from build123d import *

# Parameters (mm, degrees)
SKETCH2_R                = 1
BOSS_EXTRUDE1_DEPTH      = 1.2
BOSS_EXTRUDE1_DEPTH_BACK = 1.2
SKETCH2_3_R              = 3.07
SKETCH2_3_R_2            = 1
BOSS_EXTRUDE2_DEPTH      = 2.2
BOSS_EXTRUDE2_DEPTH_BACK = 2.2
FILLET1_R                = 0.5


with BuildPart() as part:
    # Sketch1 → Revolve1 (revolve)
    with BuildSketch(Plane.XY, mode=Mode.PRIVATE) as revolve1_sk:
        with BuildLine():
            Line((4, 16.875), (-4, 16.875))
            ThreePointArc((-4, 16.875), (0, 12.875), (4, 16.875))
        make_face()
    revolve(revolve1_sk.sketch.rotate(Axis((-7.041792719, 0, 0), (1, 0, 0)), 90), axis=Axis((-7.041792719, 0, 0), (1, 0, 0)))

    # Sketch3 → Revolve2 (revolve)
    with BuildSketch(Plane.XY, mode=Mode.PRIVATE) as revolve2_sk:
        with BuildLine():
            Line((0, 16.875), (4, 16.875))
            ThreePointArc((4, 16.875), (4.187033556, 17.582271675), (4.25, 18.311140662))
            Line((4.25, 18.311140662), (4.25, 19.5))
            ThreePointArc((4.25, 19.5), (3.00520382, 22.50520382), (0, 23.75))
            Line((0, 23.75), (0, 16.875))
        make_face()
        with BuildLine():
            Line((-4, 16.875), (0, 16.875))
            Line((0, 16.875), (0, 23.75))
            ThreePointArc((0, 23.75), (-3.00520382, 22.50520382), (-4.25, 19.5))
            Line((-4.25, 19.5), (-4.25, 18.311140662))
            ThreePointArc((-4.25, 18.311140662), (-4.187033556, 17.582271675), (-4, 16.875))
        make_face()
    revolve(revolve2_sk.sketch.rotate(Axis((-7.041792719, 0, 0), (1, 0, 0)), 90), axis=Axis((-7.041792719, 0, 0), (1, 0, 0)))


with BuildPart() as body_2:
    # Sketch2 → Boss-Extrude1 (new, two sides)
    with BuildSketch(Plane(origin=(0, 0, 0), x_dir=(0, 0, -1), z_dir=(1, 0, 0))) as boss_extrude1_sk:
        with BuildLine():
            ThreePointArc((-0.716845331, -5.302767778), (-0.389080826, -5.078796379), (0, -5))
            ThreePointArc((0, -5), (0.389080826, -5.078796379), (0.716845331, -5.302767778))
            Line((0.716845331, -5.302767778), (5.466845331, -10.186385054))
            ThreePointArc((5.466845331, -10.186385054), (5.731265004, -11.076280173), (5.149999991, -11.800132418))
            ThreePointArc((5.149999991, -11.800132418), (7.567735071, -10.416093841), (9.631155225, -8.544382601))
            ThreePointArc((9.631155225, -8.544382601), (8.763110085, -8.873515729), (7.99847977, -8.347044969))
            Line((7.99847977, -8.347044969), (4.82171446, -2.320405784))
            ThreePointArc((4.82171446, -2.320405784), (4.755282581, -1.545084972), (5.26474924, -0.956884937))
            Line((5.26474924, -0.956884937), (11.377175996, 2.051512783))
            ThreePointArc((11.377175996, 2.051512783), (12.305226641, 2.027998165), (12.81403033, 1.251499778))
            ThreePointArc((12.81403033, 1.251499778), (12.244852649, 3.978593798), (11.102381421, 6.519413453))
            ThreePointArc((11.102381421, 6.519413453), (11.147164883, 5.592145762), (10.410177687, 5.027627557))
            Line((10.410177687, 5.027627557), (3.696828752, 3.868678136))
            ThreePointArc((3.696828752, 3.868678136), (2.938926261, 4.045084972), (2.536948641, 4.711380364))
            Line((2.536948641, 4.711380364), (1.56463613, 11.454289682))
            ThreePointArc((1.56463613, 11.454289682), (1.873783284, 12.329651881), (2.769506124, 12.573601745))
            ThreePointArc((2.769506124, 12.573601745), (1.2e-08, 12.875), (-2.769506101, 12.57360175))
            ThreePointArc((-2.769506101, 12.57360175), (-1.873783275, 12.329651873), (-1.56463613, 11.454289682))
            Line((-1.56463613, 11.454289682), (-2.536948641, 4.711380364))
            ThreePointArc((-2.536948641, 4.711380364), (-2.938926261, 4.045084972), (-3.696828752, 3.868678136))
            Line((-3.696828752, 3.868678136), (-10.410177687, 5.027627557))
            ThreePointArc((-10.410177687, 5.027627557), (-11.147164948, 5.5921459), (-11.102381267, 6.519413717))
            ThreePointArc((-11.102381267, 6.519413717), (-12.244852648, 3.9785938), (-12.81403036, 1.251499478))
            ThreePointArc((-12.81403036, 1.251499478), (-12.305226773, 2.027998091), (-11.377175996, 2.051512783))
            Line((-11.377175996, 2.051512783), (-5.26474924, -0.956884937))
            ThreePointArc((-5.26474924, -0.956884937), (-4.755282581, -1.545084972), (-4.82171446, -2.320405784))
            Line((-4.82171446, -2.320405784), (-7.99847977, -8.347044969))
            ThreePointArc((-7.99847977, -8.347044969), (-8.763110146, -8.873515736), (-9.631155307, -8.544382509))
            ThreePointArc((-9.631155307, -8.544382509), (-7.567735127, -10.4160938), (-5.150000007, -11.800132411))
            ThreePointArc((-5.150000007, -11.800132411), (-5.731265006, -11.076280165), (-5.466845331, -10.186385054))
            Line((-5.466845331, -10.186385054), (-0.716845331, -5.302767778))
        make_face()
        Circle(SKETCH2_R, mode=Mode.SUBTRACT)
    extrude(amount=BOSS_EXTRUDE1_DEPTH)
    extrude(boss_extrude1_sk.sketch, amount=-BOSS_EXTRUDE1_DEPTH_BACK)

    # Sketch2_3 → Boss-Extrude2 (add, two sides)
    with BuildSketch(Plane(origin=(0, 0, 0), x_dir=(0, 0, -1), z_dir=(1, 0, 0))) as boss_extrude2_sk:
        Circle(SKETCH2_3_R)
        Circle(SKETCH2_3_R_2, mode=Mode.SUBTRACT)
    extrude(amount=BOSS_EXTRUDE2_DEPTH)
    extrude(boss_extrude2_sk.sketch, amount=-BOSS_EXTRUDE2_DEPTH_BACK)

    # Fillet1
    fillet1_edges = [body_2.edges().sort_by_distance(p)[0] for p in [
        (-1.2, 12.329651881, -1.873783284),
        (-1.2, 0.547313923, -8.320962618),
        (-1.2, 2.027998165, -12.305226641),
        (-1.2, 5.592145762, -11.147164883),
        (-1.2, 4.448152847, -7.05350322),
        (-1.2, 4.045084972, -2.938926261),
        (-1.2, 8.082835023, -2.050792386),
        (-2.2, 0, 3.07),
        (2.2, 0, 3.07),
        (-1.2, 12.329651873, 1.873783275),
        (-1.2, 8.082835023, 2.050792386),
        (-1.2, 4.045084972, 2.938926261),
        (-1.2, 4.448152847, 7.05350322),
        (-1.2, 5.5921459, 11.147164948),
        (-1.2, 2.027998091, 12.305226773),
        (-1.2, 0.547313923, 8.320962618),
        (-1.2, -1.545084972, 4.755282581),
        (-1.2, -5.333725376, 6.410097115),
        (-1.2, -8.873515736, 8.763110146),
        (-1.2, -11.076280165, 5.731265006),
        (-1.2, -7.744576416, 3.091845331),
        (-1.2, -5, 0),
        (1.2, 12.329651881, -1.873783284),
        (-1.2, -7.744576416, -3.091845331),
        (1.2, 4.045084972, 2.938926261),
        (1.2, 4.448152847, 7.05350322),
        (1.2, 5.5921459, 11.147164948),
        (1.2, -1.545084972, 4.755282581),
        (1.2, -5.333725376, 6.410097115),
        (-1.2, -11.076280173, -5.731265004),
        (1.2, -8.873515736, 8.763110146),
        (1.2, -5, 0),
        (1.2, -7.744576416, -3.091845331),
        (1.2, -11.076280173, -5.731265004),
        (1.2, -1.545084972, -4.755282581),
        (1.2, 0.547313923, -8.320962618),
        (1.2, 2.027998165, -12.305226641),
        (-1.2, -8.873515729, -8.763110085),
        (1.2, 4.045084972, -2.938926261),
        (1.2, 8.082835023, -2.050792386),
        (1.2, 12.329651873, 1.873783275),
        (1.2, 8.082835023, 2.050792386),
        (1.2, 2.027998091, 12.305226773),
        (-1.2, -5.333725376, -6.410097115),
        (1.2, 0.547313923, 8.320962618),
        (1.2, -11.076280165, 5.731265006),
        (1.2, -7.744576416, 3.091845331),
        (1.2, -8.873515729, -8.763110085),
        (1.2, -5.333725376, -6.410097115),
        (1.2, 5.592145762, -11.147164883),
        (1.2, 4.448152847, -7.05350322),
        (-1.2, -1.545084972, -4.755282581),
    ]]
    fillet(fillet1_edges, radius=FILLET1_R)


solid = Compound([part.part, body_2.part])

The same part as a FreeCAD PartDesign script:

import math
import FreeCAD as App
import Part
import Sketcher


def edges_at(feature, points):
    """Names of the edges that pass closest to the given points."""
    edges = feature.Shape.Edges
    near = lambda p: min(range(len(edges)), key=lambda i: edges[i].distToShape(Part.Vertex(*p))[0])
    return sorted({f"Edge{near(p) + 1}" for p in points})

doc = App.newDocument("Part")
body = doc.addObject("PartDesign::Body", "Body")

# Sketch on XY plane
sketch1 = body.newObject("Sketcher::SketchObject", "Sketch")
sketch1.AttachmentSupport = (doc.getObject("XY_Plane"), [""])
sketch1.MapMode = "FlatFace"
sketch1.addGeometry(Part.LineSegment(App.Vector(4, 16.9, 0), App.Vector(-4, 16.9, 0)), False)
sketch1.addGeometry(Part.ArcOfCircle(Part.Circle(App.Vector(0, 16.9, 0), App.Vector(0, 0, 1), 4), math.radians(180), math.radians(360)), False)
sketch1.addConstraint(Sketcher.Constraint("Coincident", 0, 1, 1, 2))
sketch1.addConstraint(Sketcher.Constraint("Coincident", 1, 1, 0, 2))
sketch1.addConstraint(Sketcher.Constraint("Horizontal", 0))
sketch1.addConstraint(Sketcher.Constraint("PointOnObject", 1, 3, -2))
sketch1.addConstraint(Sketcher.Constraint("Horizontal", 1, 3, 0, 1))
sketch1.addConstraint(Sketcher.Constraint("Radius", 1, 4.0))
sketch1.addConstraint(Sketcher.Constraint("DistanceY", -1, 1, 1, 3, 16.875))
revolution = body.newObject("PartDesign::Revolution", "Revolution")
revolution.Profile = sketch1
revolution.ReferenceAxis = (sketch1, ["H_Axis"])
revolution.Angle = 360

# Sketch on XY plane
sketch2 = body.newObject("Sketcher::SketchObject", "Sketch001")
sketch2.AttachmentSupport = (doc.getObject("XY_Plane"), [""])
sketch2.MapMode = "FlatFace"
sketch2.addGeometry(Part.ArcOfCircle(Part.Circle(App.Vector(0, 18.3, 0), App.Vector(0, 0, 1), 4.3), math.radians(-19.75), math.radians(0)), False)
sketch2.addGeometry(Part.LineSegment(App.Vector(4.2, 18.3, 0), App.Vector(4.2, 19.5, 0)), False)
sketch2.addGeometry(Part.ArcOfCircle(Part.Circle(App.Vector(0, 19.5, 0), App.Vector(0, 0, 1), 4.2), math.radians(0), math.radians(90)), False)
sketch2.addGeometry(Part.ArcOfCircle(Part.Circle(App.Vector(0, 19.5, 0), App.Vector(0, 0, 1), 4.2), math.radians(90), math.radians(180)), False)
sketch2.addGeometry(Part.LineSegment(App.Vector(-4.2, 19.5, 0), App.Vector(-4.2, 18.3, 0)), False)
sketch2.addGeometry(Part.ArcOfCircle(Part.Circle(App.Vector(0, 18.3, 0), App.Vector(0, 0, 1), 4.3), math.radians(-180), math.radians(-160.25)), False)
sketch2.addGeometry(Part.LineSegment(App.Vector(-4, 16.9, 0), App.Vector(4, 16.9, 0)), False)
sketch2.addConstraint(Sketcher.Constraint("Tangent", 0, 2, 1, 1))
sketch2.addConstraint(Sketcher.Constraint("Tangent", 1, 2, 2, 1))
sketch2.addConstraint(Sketcher.Constraint("Tangent", 2, 2, 3, 1))
sketch2.addConstraint(Sketcher.Constraint("Tangent", 3, 2, 4, 1))
sketch2.addConstraint(Sketcher.Constraint("Tangent", 4, 2, 5, 1))
sketch2.addConstraint(Sketcher.Constraint("Coincident", 5, 2, 6, 1))
sketch2.addConstraint(Sketcher.Constraint("Coincident", 6, 2, 0, 1))
sketch2.addConstraint(Sketcher.Constraint("Vertical", 1))
sketch2.addConstraint(Sketcher.Constraint("Vertical", 4))
sketch2.addConstraint(Sketcher.Constraint("Horizontal", 6))
sketch2.addConstraint(Sketcher.Constraint("Coincident", 5, 3, 0, 3))
sketch2.addConstraint(Sketcher.Constraint("Equal", 0, 2))
sketch2.addConstraint(Sketcher.Constraint("Equal", 2, 3))
sketch2.addConstraint(Sketcher.Constraint("PointOnObject", 0, 3, -2))
sketch2.addConstraint(Sketcher.Constraint("PointOnObject", 2, 2, -2))
sketch2.addConstraint(Sketcher.Constraint("DistanceX", 6, 1, 6, 2, 8.0))
sketch2.addConstraint(Sketcher.Constraint("Radius", 0, 4.25))
sketch2.addConstraint(Sketcher.Constraint("DistanceY", -1, 1, 2, 3, 19.5))
sketch2.addConstraint(Sketcher.Constraint("DistanceY", -1, 1, 5, 2, 16.875))
revolution2 = body.newObject("PartDesign::Revolution", "Revolution001")
revolution2.Profile = sketch2
revolution2.ReferenceAxis = (sketch2, ["H_Axis"])
revolution2.Angle = 360
body2 = doc.addObject("PartDesign::Body", "Body001")

# Sketch on YZ plane
sketch3 = body2.newObject("Sketcher::SketchObject", "Sketch002")
sketch3.AttachmentSupport = (doc.getObject("YZ_Plane001"), [""])
sketch3.MapMode = "FlatFace"
sketch3.addGeometry(Part.ArcOfCircle(Part.Circle(App.Vector(-6, 0, 0), App.Vector(0, 0, 1), 1), math.radians(0), math.radians(46)), False)
sketch3.addGeometry(Part.ArcOfCircle(Part.Circle(App.Vector(-6, 0, 0), App.Vector(0, 0, 1), 1), math.radians(-46), math.radians(0)), False)
sketch3.addGeometry(Part.LineSegment(App.Vector(-5.3, -0.7, 0), App.Vector(-10.2, -5.5, 0)), False)
sketch3.addGeometry(Part.ArcOfCircle(Part.Circle(App.Vector(-10.9, -4.8, 0), App.Vector(0, 0, 1), 1), math.radians(-156), math.radians(-46)), False)
sketch3.addGeometry(Part.ArcOfCircle(Part.Circle(App.Vector(0, 0, 0), App.Vector(0, 0, 1), 12.9), math.radians(-156), math.radians(-132)), False)
sketch3.addGeometry(Part.ArcOfCircle(Part.Circle(App.Vector(-7.9, -8.9, 0), App.Vector(0, 0, 1), 1), math.radians(118), math.radians(228)), False)
sketch3.addGeometry(Part.LineSegment(App.Vector(-8.3, -8, 0), App.Vector(-2.3, -4.8, 0)), False)
sketch3.addGeometry(Part.ArcOfCircle(Part.Circle(App.Vector(-1.9, -5.7, 0), App.Vector(0, 0, 1), 1), math.radians(26), math.radians(118)), False)
sketch3.addGeometry(Part.LineSegment(App.Vector(-1, -5.3, 0), App.Vector(2.1, -11.4, 0)), False)
sketch3.addGeometry(Part.ArcOfCircle(Part.Circle(App.Vector(1.2, -11.8, 0), App.Vector(0, 0, 1), 1), math.radians(-84), math.radians(26)), False)
sketch3.addGeometry(Part.ArcOfCircle(Part.Circle(App.Vector(0, 0, 0), App.Vector(0, 0, 1), 12.9), math.radians(-84), math.radians(-60)), False)
sketch3.addGeometry(Part.ArcOfCircle(Part.Circle(App.Vector(6, -10.2, 0), App.Vector(0, 0, 1), 1), math.radians(-170), math.radians(-60)), False)
sketch3.addGeometry(Part.LineSegment(App.Vector(5, -10.4, 0), App.Vector(3.9, -3.7, 0)), False)
sketch3.addGeometry(Part.ArcOfCircle(Part.Circle(App.Vector(4.9, -3.5, 0), App.Vector(0, 0, 1), 1), math.radians(98), math.radians(190)), False)
sketch3.addGeometry(Part.LineSegment(App.Vector(4.7, -2.5, 0), App.Vector(11.5, -1.6, 0)), False)
sketch3.addGeometry(Part.ArcOfCircle(Part.Circle(App.Vector(11.6, -2.6, 0), App.Vector(0, 0, 1), 1), math.radians(-12), math.radians(98)), False)
sketch3.addGeometry(Part.ArcOfCircle(Part.Circle(App.Vector(0, 0, 0), App.Vector(0, 0, 1), 12.9), math.radians(-12), math.radians(12)), False)
sketch3.addGeometry(Part.ArcOfCircle(Part.Circle(App.Vector(11.6, 2.6, 0), App.Vector(0, 0, 1), 1), math.radians(-98), math.radians(12)), False)
sketch3.addGeometry(Part.LineSegment(App.Vector(11.5, 1.6, 0), App.Vector(4.7, 2.5, 0)), False)
sketch3.addGeometry(Part.ArcOfCircle(Part.Circle(App.Vector(4.9, 3.5, 0), App.Vector(0, 0, 1), 1), math.radians(170), math.radians(262)), False)
sketch3.addGeometry(Part.LineSegment(App.Vector(3.9, 3.7, 0), App.Vector(5, 10.4, 0)), False)
sketch3.addGeometry(Part.ArcOfCircle(Part.Circle(App.Vector(6, 10.2, 0), App.Vector(0, 0, 1), 1), math.radians(60), math.radians(170)), False)
sketch3.addGeometry(Part.ArcOfCircle(Part.Circle(App.Vector(0, 0, 0), App.Vector(0, 0, 1), 12.9), math.radians(60), math.radians(84)), False)
sketch3.addGeometry(Part.ArcOfCircle(Part.Circle(App.Vector(1.2, 11.8, 0), App.Vector(0, 0, 1), 1), math.radians(-26), math.radians(84)), False)
sketch3.addGeometry(Part.LineSegment(App.Vector(2.1, 11.4, 0), App.Vector(-1, 5.3, 0)), False)
sketch3.addGeometry(Part.ArcOfCircle(Part.Circle(App.Vector(-1.9, 5.7, 0), App.Vector(0, 0, 1), 1), math.radians(-118), math.radians(-26)), False)
sketch3.addGeometry(Part.LineSegment(App.Vector(-2.3, 4.8, 0), App.Vector(-8.3, 8, 0)), False)
sketch3.addGeometry(Part.ArcOfCircle(Part.Circle(App.Vector(-7.9, 8.9, 0), App.Vector(0, 0, 1), 1), math.radians(132), math.radians(242)), False)
sketch3.addGeometry(Part.ArcOfCircle(Part.Circle(App.Vector(0, 0, 0), App.Vector(0, 0, 1), 12.9), math.radians(132), math.radians(156)), False)
sketch3.addGeometry(Part.ArcOfCircle(Part.Circle(App.Vector(-10.9, 4.8, 0), App.Vector(0, 0, 1), 1), math.radians(46), math.radians(156)), False)
sketch3.addGeometry(Part.LineSegment(App.Vector(-10.2, 5.5, 0), App.Vector(-5.3, 0.7, 0)), False)
sketch3.addGeometry(Part.Circle(App.Vector(0, 0, 0), App.Vector(0, 0, 1), 1), False)
sketch3.addConstraint(Sketcher.Constraint("Tangent", 0, 1, 1, 2))
sketch3.addConstraint(Sketcher.Constraint("Tangent", 1, 1, 2, 1))
sketch3.addConstraint(Sketcher.Constraint("Tangent", 2, 2, 3, 2))
sketch3.addConstraint(Sketcher.Constraint("Tangent", 3, 1, 4, 1))
sketch3.addConstraint(Sketcher.Constraint("Tangent", 4, 2, 5, 2))
sketch3.addConstraint(Sketcher.Constraint("Tangent", 5, 1, 6, 1))
sketch3.addConstraint(Sketcher.Constraint("Tangent", 6, 2, 7, 2))
sketch3.addConstraint(Sketcher.Constraint("Tangent", 7, 1, 8, 1))
sketch3.addConstraint(Sketcher.Constraint("Tangent", 8, 2, 9, 2))
sketch3.addConstraint(Sketcher.Constraint("Tangent", 9, 1, 10, 1))
sketch3.addConstraint(Sketcher.Constraint("Tangent", 10, 2, 11, 2))
sketch3.addConstraint(Sketcher.Constraint("Tangent", 11, 1, 12, 1))
sketch3.addConstraint(Sketcher.Constraint("Tangent", 12, 2, 13, 2))
sketch3.addConstraint(Sketcher.Constraint("Tangent", 13, 1, 14, 1))
sketch3.addConstraint(Sketcher.Constraint("Tangent", 14, 2, 15, 2))
sketch3.addConstraint(Sketcher.Constraint("Tangent", 15, 1, 16, 1))
sketch3.addConstraint(Sketcher.Constraint("Tangent", 16, 2, 17, 2))
sketch3.addConstraint(Sketcher.Constraint("Tangent", 17, 1, 18, 1))
sketch3.addConstraint(Sketcher.Constraint("Tangent", 18, 2, 19, 2))
sketch3.addConstraint(Sketcher.Constraint("Tangent", 19, 1, 20, 1))
sketch3.addConstraint(Sketcher.Constraint("Tangent", 20, 2, 21, 2))
sketch3.addConstraint(Sketcher.Constraint("Tangent", 21, 1, 22, 1))
sketch3.addConstraint(Sketcher.Constraint("Tangent", 22, 2, 23, 2))
sketch3.addConstraint(Sketcher.Constraint("Tangent", 23, 1, 24, 1))
sketch3.addConstraint(Sketcher.Constraint("Tangent", 24, 2, 25, 2))
sketch3.addConstraint(Sketcher.Constraint("Tangent", 25, 1, 26, 1))
sketch3.addConstraint(Sketcher.Constraint("Tangent", 26, 2, 27, 2))
sketch3.addConstraint(Sketcher.Constraint("Tangent", 27, 1, 28, 1))
sketch3.addConstraint(Sketcher.Constraint("Tangent", 28, 2, 29, 2))
sketch3.addConstraint(Sketcher.Constraint("Tangent", 29, 1, 30, 1))
sketch3.addConstraint(Sketcher.Constraint("Tangent", 30, 2, 0, 2))
sketch3.addConstraint(Sketcher.Constraint("Coincident", 4, 3, -1, 1))
sketch3.addConstraint(Sketcher.Constraint("Coincident", 10, 3, -1, 1))
sketch3.addConstraint(Sketcher.Constraint("Coincident", 16, 3, -1, 1))
sketch3.addConstraint(Sketcher.Constraint("Coincident", 22, 3, -1, 1))
sketch3.addConstraint(Sketcher.Constraint("Coincident", 28, 3, -1, 1))
sketch3.addConstraint(Sketcher.Constraint("Coincident", 31, 3, -1, 1))
sketch3.addConstraint(Sketcher.Constraint("Equal", 0, 1))
sketch3.addConstraint(Sketcher.Constraint("Equal", 1, 3))
sketch3.addConstraint(Sketcher.Constraint("Equal", 3, 5))
sketch3.addConstraint(Sketcher.Constraint("Equal", 5, 7))
sketch3.addConstraint(Sketcher.Constraint("Equal", 7, 9))
sketch3.addConstraint(Sketcher.Constraint("Equal", 4, 10))
sketch3.addConstraint(Sketcher.Constraint("Equal", 9, 11))
sketch3.addConstraint(Sketcher.Constraint("Equal", 11, 13))
sketch3.addConstraint(Sketcher.Constraint("Equal", 13, 15))
sketch3.addConstraint(Sketcher.Constraint("Equal", 10, 16))
sketch3.addConstraint(Sketcher.Constraint("Equal", 15, 17))
sketch3.addConstraint(Sketcher.Constraint("Equal", 17, 19))
sketch3.addConstraint(Sketcher.Constraint("Equal", 19, 21))
sketch3.addConstraint(Sketcher.Constraint("Equal", 16, 22))
sketch3.addConstraint(Sketcher.Constraint("Equal", 21, 23))
sketch3.addConstraint(Sketcher.Constraint("Equal", 23, 25))
sketch3.addConstraint(Sketcher.Constraint("Equal", 25, 27))
sketch3.addConstraint(Sketcher.Constraint("Equal", 22, 28))
sketch3.addConstraint(Sketcher.Constraint("Equal", 27, 29))
sketch3.addConstraint(Sketcher.Constraint("Equal", 29, 31))
sketch3.addConstraint(Sketcher.Constraint("Symmetric", 13, 3, 19, 3, -1))
sketch3.addConstraint(Sketcher.Constraint("Symmetric", 7, 3, 25, 3, -1))
sketch3.addConstraint(Sketcher.Constraint("Symmetric", 2, 2, 29, 1, -1))
sketch3.addConstraint(Sketcher.Constraint("PointOnObject", 0, 1, -1))
sketch3.addConstraint(Sketcher.Constraint("Vertical", 15, 3, 17, 3))
sketch3.addConstraint(Sketcher.Constraint("Vertical", 11, 3, 21, 3))
sketch3.addConstraint(Sketcher.Constraint("Vertical", 9, 3, 23, 3))
sketch3.addConstraint(Sketcher.Constraint("Vertical", 5, 3, 27, 3))
sketch3.addConstraint(Sketcher.Constraint("Equal", 2, 6))
sketch3.addConstraint(Sketcher.Constraint("Equal", 6, 8))
sketch3.addConstraint(Sketcher.Constraint("Equal", 8, 12))
sketch3.addConstraint(Sketcher.Constraint("Equal", 12, 14))
sketch3.addConstraint(Sketcher.Constraint("Diameter", 31, 2.0))
sketch3.addConstraint(Sketcher.Constraint("DistanceX", 0, 3, -1, 1, 6.0))
sketch3.addConstraint(Sketcher.Constraint("Radius", 4, 12.875))
sketch3.addConstraint(Sketcher.Constraint("DistanceY", 3, 3, 29, 3, 9.5))
sketch3.addConstraint(Sketcher.Constraint("DistanceY", 8, 2, 11, 1, 0.966998))
sketch3.addConstraint(Sketcher.Constraint("DistanceX", 7, 3, -1, 1, 1.854102))
sketch3.addConstraint(Sketcher.Constraint("DistanceX", -1, 1, 13, 3, 4.854102))
sketch3.addConstraint(Sketcher.Constraint("DistanceY", 15, 3, -1, 1, 2.554399))
pad1 = body2.newObject("PartDesign::Pad", "Pad")
pad1.Profile = sketch3
pad1.Type = "TwoLengths"
pad1.Length = 1.2
pad1.Length2 = 1.2

# Sketch on YZ plane
sketch4 = body2.newObject("Sketcher::SketchObject", "Sketch003")
sketch4.AttachmentSupport = (doc.getObject("YZ_Plane001"), [""])
sketch4.MapMode = "FlatFace"
sketch4.addGeometry(Part.Circle(App.Vector(0, 0, 0), App.Vector(0, 0, 1), 3.1), False)
sketch4.addGeometry(Part.Circle(App.Vector(0, 0, 0), App.Vector(0, 0, 1), 1), False)
sketch4.addConstraint(Sketcher.Constraint("Coincident", 0, 3, -1, 1))
sketch4.addConstraint(Sketcher.Constraint("Coincident", 1, 3, -1, 1))
sketch4.addConstraint(Sketcher.Constraint("Diameter", 1, 2.0))
sketch4.addConstraint(Sketcher.Constraint("Diameter", 0, 6.14))
pad2 = body2.newObject("PartDesign::Pad", "Pad001")
pad2.Profile = sketch4
pad2.Type = "TwoLengths"
pad2.Length = 2.2
pad2.Length2 = 2.2
doc.recompute()

fillet = body2.newObject("PartDesign::Fillet", "Fillet")
fillet.Base = (pad2, edges_at(pad2, [
    (-1.2, 12.33, -1.874),
    (-1.2, 0.547, -8.321),
    (-1.2, 2.028, -12.305),
    (-1.2, 5.592, -11.147),
    (-1.2, 4.448, -7.054),
    (-1.2, 4.045, -2.939),
    (-1.2, 8.083, -2.051),
    (-2.2, 0, 3.07),
    (2.2, 0, 3.07),
    (-1.2, 12.33, 1.874),
    (-1.2, 8.083, 2.051),
    (-1.2, 4.045, 2.939),
    (-1.2, 4.448, 7.054),
    (-1.2, 5.592, 11.147),
    (-1.2, 2.028, 12.305),
    (-1.2, 0.547, 8.321),
    (-1.2, -1.545, 4.755),
    (-1.2, -5.334, 6.41),
    (-1.2, -8.874, 8.763),
    (-1.2, -11.076, 5.731),
    (-1.2, -7.745, 3.092),
    (-1.2, -5.079, 0.389),
    (1.2, 12.33, -1.874),
    (-1.2, -7.745, -3.092),
    (1.2, 4.045, 2.939),
    (1.2, 4.448, 7.054),
    (1.2, 5.592, 11.147),
    (1.2, -1.545, 4.755),
    (1.2, -5.334, 6.41),
    (-1.2, -11.076, -5.731),
    (1.2, -8.874, 8.763),
    (1.2, -5.079, 0.389),
    (1.2, -7.745, -3.092),
    (1.2, -11.076, -5.731),
    (1.2, -1.545, -4.755),
    (1.2, 0.547, -8.321),
    (1.2, 2.028, -12.305),
    (-1.2, -8.874, -8.763),
    (1.2, 4.045, -2.939),
    (1.2, 8.083, -2.051),
    (1.2, 12.33, 1.874),
    (1.2, 8.083, 2.051),
    (1.2, 2.028, 12.305),
    (-1.2, -5.334, -6.41),
    (1.2, 0.547, 8.321),
    (1.2, -11.076, 5.731),
    (1.2, -7.745, 3.092),
    (1.2, -8.874, -8.763),
    (1.2, -5.334, -6.41),
    (1.2, 5.592, -11.147),
    (1.2, 4.448, -7.054),
    (-1.2, -1.545, -4.755),
]))
fillet.Radius = 0.5

doc.recompute()
